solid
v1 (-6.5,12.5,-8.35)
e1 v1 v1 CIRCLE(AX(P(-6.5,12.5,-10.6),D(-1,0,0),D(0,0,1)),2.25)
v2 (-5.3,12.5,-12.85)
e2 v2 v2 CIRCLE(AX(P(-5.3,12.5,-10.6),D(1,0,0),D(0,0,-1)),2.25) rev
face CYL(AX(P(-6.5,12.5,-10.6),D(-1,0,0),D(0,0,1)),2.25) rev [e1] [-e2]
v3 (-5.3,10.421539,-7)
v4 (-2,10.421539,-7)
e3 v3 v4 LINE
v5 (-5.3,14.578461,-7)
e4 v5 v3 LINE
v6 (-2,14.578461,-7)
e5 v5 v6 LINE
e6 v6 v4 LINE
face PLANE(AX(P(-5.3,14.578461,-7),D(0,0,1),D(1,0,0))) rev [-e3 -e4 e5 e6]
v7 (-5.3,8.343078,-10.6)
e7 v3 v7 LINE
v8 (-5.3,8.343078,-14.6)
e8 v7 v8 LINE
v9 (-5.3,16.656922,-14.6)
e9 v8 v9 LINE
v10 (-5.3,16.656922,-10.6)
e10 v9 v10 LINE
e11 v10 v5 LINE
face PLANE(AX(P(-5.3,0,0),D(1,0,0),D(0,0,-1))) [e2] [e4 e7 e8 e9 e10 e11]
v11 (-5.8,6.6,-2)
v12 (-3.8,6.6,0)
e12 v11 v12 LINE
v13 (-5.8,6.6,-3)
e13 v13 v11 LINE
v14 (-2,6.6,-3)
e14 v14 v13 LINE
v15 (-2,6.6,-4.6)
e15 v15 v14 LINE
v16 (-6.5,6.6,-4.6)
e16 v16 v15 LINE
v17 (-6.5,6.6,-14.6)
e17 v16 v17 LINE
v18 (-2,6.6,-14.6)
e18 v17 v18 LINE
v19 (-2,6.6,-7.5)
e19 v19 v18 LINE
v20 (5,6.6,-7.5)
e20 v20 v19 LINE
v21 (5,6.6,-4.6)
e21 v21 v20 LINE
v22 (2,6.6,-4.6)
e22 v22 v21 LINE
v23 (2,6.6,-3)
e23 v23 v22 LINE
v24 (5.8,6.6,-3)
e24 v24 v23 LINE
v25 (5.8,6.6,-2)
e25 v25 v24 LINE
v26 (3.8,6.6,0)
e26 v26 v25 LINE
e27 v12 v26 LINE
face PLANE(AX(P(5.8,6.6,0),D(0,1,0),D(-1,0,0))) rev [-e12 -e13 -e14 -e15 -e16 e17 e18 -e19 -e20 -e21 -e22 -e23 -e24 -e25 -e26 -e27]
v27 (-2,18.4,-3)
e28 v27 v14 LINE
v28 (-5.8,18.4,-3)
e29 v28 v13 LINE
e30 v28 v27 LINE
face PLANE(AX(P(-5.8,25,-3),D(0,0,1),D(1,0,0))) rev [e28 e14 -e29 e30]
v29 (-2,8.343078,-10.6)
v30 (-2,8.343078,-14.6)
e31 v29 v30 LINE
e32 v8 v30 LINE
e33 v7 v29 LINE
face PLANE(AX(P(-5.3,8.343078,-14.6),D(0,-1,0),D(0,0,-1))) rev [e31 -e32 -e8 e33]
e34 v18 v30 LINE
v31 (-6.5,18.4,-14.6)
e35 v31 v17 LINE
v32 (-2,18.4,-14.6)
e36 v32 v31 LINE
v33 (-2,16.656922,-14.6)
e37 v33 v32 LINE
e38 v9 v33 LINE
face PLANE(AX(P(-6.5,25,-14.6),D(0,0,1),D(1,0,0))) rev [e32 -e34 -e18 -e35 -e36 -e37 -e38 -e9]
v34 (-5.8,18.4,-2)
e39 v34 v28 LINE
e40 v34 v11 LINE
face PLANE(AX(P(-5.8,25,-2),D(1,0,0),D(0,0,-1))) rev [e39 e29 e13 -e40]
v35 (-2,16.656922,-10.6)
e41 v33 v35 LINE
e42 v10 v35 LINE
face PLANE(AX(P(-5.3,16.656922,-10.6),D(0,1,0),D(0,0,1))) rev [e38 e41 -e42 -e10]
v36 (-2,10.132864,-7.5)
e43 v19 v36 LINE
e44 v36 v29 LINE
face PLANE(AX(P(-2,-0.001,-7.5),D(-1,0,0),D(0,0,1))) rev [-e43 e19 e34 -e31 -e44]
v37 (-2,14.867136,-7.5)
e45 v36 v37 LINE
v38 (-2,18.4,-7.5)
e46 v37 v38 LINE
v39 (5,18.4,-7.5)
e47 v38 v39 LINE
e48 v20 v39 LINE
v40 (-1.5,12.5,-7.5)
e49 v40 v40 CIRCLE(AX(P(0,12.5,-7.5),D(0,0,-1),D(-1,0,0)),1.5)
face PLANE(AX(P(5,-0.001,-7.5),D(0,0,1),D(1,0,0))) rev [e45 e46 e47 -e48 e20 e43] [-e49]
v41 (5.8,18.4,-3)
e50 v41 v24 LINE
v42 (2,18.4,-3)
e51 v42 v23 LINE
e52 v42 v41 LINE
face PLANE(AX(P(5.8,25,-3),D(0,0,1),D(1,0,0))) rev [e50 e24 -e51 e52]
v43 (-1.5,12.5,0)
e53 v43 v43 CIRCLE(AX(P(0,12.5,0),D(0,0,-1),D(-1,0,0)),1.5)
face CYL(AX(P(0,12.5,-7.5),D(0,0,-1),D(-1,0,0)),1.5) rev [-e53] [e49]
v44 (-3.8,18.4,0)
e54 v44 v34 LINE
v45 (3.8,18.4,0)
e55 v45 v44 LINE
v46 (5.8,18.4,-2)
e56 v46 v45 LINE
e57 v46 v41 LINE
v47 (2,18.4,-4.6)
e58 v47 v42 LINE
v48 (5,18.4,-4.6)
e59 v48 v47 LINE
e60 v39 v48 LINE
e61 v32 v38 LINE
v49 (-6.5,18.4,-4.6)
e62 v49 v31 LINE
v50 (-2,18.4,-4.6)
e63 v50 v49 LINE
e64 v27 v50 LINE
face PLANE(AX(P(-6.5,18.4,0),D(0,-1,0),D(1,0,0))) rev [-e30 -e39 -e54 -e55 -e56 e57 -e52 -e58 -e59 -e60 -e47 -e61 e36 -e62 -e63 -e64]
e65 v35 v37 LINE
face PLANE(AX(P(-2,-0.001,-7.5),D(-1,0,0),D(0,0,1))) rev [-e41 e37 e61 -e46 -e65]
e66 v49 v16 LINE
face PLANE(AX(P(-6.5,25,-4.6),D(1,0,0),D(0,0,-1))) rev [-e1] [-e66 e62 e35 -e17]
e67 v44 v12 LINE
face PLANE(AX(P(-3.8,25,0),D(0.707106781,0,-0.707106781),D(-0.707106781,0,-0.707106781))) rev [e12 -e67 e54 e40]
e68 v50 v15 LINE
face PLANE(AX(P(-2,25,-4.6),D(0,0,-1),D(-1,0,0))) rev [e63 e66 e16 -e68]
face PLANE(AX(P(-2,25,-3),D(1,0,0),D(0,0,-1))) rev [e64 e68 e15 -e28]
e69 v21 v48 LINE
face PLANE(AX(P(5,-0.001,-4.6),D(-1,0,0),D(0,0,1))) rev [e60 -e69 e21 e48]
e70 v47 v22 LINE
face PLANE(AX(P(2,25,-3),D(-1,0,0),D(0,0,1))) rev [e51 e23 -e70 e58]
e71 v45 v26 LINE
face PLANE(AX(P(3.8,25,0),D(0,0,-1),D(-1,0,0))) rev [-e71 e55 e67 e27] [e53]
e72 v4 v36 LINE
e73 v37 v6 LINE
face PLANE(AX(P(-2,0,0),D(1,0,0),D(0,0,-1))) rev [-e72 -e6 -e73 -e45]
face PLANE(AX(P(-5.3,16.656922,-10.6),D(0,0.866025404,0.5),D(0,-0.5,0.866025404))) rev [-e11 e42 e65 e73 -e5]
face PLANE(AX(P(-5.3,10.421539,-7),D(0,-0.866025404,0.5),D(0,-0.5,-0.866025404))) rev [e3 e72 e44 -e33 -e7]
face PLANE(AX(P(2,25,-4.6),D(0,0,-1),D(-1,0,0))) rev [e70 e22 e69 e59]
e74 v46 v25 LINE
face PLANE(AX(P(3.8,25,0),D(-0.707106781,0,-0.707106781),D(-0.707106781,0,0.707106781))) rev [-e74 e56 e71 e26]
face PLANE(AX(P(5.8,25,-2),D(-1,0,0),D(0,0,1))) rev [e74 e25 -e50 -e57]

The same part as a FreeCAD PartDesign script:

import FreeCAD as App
import Part
import Sketcher
from FreeCAD import Vector
Q = App.Units.Quantity

doc = App.newDocument("Part")
body = doc.addObject("PartDesign::Body", "Body")

sketch1 = body.newObject("Sketcher::SketchObject", "Sketch")
sketch1.AttachmentSupport = (doc.getObject("XZ_Plane"), [""])
sketch1.MapMode = "FlatFace"
sketch1.addGeometry([
    Part.LineSegment(Vector(-5.8, -2, 0), Vector(-3.8, 0, 0)),
    Part.LineSegment(Vector(-3.8, 0, 0), Vector(3.8, 0, 0)),
    Part.LineSegment(Vector(3.8, 0, 0), Vector(5.8, -2, 0)),
    Part.LineSegment(Vector(5.8, -2, 0), Vector(5.8, -3, 0)),
    Part.LineSegment(Vector(5.8, -3, 0), Vector(2, -3, 0)),
    Part.LineSegment(Vector(2, -3, 0), Vector(2, -4.6, 0)),
    Part.LineSegment(Vector(2, -4.6, 0), Vector(6.5, -4.6, 0)),
    Part.LineSegment(Vector(6.5, -4.6, 0), Vector(6.5, -14.6, 0)),
    Part.LineSegment(Vector(6.5, -14.6, 0), Vector(-6.5, -14.6, 0)),
    Part.LineSegment(Vector(-6.5, -14.6, 0), Vector(-6.5, -4.6, 0)),
    Part.LineSegment(Vector(-6.5, -4.6, 0), Vector(-2, -4.6, 0)),
    Part.LineSegment(Vector(-2, -4.6, 0), Vector(-2, -3, 0)),
    Part.LineSegment(Vector(-2, -3, 0), Vector(-5.8, -3, 0)),
    Part.LineSegment(Vector(-5.8, -3, 0), Vector(-5.8, -2, 0)),
], False)
sketch1.addConstraint([
    Sketcher.Constraint("Coincident", 0, 2, 1, 1),
    Sketcher.Constraint("Coincident", 1, 2, 2, 1),
    Sketcher.Constraint("Coincident", 2, 2, 3, 1),
    Sketcher.Constraint("Coincident", 3, 2, 4, 1),
    Sketcher.Constraint("Coincident", 4, 2, 5, 1),
    Sketcher.Constraint("Coincident", 5, 2, 6, 1),
    Sketcher.Constraint("Coincident", 6, 2, 7, 1),
    Sketcher.Constraint("Coincident", 7, 2, 8, 1),
    Sketcher.Constraint("Coincident", 8, 2, 9, 1),
    Sketcher.Constraint("Coincident", 9, 2, 10, 1),
    Sketcher.Constraint("Coincident", 10, 2, 11, 1),
    Sketcher.Constraint("Coincident", 11, 2, 12, 1),
    Sketcher.Constraint("Coincident", 12, 2, 13, 1),
    Sketcher.Constraint("Coincident", 13, 2, 0, 1),
    Sketcher.Constraint("Horizontal", 1),
    Sketcher.Constraint("Vertical", 3),
    Sketcher.Constraint("Horizontal", 4),
    Sketcher.Constraint("Vertical", 5),
    Sketcher.Constraint("Horizontal", 6),
    Sketcher.Constraint("Vertical", 7),
    Sketcher.Constraint("Horizontal", 8),
    Sketcher.Constraint("Vertical", 9),
    Sketcher.Constraint("Horizontal", 10),
    Sketcher.Constraint("Vertical", 11),
    Sketcher.Constraint("Horizontal", 12),
    Sketcher.Constraint("Vertical", 13),
    Sketcher.Constraint("Symmetric", 0, 2, 1, 2, -1, 1),
    Sketcher.Constraint("Symmetric", 6, 2, 9, 2, -2),
    Sketcher.Constraint("Symmetric", 4, 2, 11, 2, -2),
    Sketcher.Constraint("Symmetric", 2, 2, 13, 2, -2),
    Sketcher.Constraint("Perpendicular", 0, 2),
    Sketcher.Constraint("DistanceX", 8, 2, 8, 1, Q("13 mm")),
    Sketcher.Constraint("DistanceY", 3, 2, 3, 1, Q("1 mm")),
    Sketcher.Constraint("DistanceY", 7, 2, 7, 1, Q("10 mm")),
    Sketcher.Constraint("DistanceX", 1, 1, 1, 2, Q("7.6 mm")),
    Sketcher.Constraint("DistanceX", 4, 2, 4, 1, Q("3.8 mm")),
    Sketcher.Constraint("DistanceX", 6, 1, 6, 2, Q("4.5 mm")),
    Sketcher.Constraint("DistanceY", 5, 2, 5, 1, Q("1.6 mm")),
])
pad1 = body.newObject("PartDesign::Pad", "Pad")
pad1.Profile = sketch1
pad1.Length = 25
pad1.Reversed = True

sketch2 = body.newObject("Sketcher::SketchObject", "Sketch001")
sketch2.AttachmentSupport = (doc.getObject("XZ_Plane"), [""])
sketch2.MapMode = "FlatFace"
sketch2.AttachmentOffset = App.Placement(Vector(0, 0, -25), App.Rotation())
sketch2.addGeometry([
    Part.LineSegment(Vector(5, -4.6, 0), Vector(6.5, -4.6, 0)),
    Part.LineSegment(Vector(6.5, -4.6, 0), Vector(6.5, -14.6, 0)),
    Part.LineSegment(Vector(6.5, -14.6, 0), Vector(-2, -14.6, 0)),
    Part.LineSegment(Vector(-2, -14.6, 0), Vector(-2, -7.5, 0)),
    Part.LineSegment(Vector(-2, -7.5, 0), Vector(5, -7.5, 0)),
    Part.LineSegment(Vector(5, -7.5, 0), Vector(5, -4.6, 0)),
], False)
sketch2.addConstraint([
    Sketcher.Constraint("Coincident", 0, 2, 1, 1),
    Sketcher.Constraint("Coincident", 1, 2, 2, 1),
    Sketcher.Constraint("Coincident", 2, 2, 3, 1),
    Sketcher.Constraint("Coincident", 3, 2, 4, 1),
    Sketcher.Constraint("Coincident", 4, 2, 5, 1),
    Sketcher.Constraint("Coincident", 5, 2, 0, 1),
    Sketcher.Constraint("Horizontal", 0),
    Sketcher.Constraint("Vertical", 1),
    Sketcher.Constraint("Horizontal", 2),
    Sketcher.Constraint("Vertical", 3),
    Sketcher.Constraint("Horizontal", 4),
    Sketcher.Constraint("Vertical", 5),
    Sketcher.Constraint("DistanceX", 4, 1, 4, 2, Q("7 mm")),
    Sketcher.Constraint("DistanceY", 1, 2, 1, 1, Q("10 mm")),
    Sketcher.Constraint("DistanceX", 0, 1, 0, 2, Q("1.5 mm")),
    Sketcher.Constraint("DistanceY", 3, 1, 3, 2, Q("7.1 mm")),
    Sketcher.Constraint("DistanceX", 2, 2, -1, 1, Q("2 mm")),
    Sketcher.Constraint("DistanceY", 0, 2, -1, 1, Q("4.6 mm")),
])
pocket1 = body.newObject("PartDesign::Pocket", "Pocket")
pocket1.Profile = sketch2
pocket1.Type = "UpToFirst"
pocket1.Reversed = True

sketch3 = body.newObject("Sketcher::SketchObject", "Sketch002")
sketch3.AttachmentSupport = (doc.getObject("XY_Plane"), [""])
sketch3.MapMode = "FlatFace"
sketch3.AttachmentOffset = App.Placement(Vector(0, 0, -7.5), App.Rotation())
sketch3.addGeometry([
    Part.Circle(Vector(0, 22, 0), Vector(0, 0, 1), 1.5),
    Part.Circle(Vector(0, 3, 0), Vector(0, 0, 1), 1.5),
    Part.Circle(Vector(0, 12.5, 0), Vector(0, 0, 1), 1.5),
], False)
sketch3.addConstraint([
    Sketcher.Constraint("Equal", 0, 1),
    Sketcher.Constraint("Equal", 1, 2),
    Sketcher.Constraint("PointOnObject", 0, 3, -2),
    Sketcher.Constraint("PointOnObject", 1, 3, -2),
    Sketcher.Constraint("PointOnObject", 2, 3, -2),
    Sketcher.Constraint("Diameter", 0, Q("3 mm")),
    Sketcher.Constraint("DistanceY", -1, 1, 0, 3, Q("22 mm")),
    Sketcher.Constraint("DistanceY", -1, 1, 1, 3, Q("3 mm")),
    Sketcher.Constraint("DistanceY", -1, 1, 2, 3, Q("12.5 mm")),
])
doc.recompute()
hole = body.newObject("PartDesign::Hole", "Hole")
hole.Profile = sketch3
hole.ThreadType = "None"
hole.Diameter = 3
hole.DepthType = "Dimension"
hole.Depth = 7.5
hole.DrillPoint = "Flat"
hole.Reversed = True

sketch4 = body.newObject("Sketcher::SketchObject", "Sketch003")
sketch4.AttachmentSupport = (doc.getObject("YZ_Plane"), [""])
sketch4.MapMode = "FlatFace"
sketch4.AttachmentOffset = App.Placement(Vector(0, 0, -6.5), App.Rotation())
sketch4.addGeometry(Part.Circle(Vector(12.5, -10.6, 0), Vector(0, 0, 1), 2.2), False)
sketch4.addConstraint([
    Sketcher.Constraint("Diameter", 0, Q("4.5 mm")),
    Sketcher.Constraint("DistanceX", -1, 1, 0, 3, Q("12.5 mm")),
    Sketcher.Constraint("DistanceY", 0, 3, -1, 1, Q("10.6 mm")),
])
doc.recompute()
hole2 = body.newObject("PartDesign::Hole", "Hole001")
hole2.Profile = sketch4
hole2.ThreadType = "None"
hole2.Diameter = 4.5
hole2.DepthType = "Dimension"
hole2.Depth = 4.5
hole2.DrillPoint = "Flat"
hole2.Reversed = True

sketch5 = body.newObject("Sketcher::SketchObject", "Sketch004")
sketch5.AttachmentSupport = (doc.getObject("YZ_Plane"), [""])
sketch5.MapMode = "FlatFace"
sketch5.AttachmentOffset = App.Placement(Vector(0, 0, -2), App.Rotation())
sketch5.addGeometry([
    Part.LineSegment(Vector(16.7, -14.6, 0), Vector(16.7, -10.6, 0)),
    Part.LineSegment(Vector(16.7, -10.6, 0), Vector(14.6, -7, 0)),
    Part.LineSegment(Vector(14.6, -7, 0), Vector(10.4, -7, 0)),
    Part.LineSegment(Vector(10.4, -7, 0), Vector(8.3, -10.6, 0)),
    Part.LineSegment(Vector(8.3, -10.6, 0), Vector(8.3, -14.6, 0)),
    Part.LineSegment(Vector(8.3, -14.6, 0), Vector(16.7, -14.6, 0)),
], False)
sketch5.addConstraint([
    Sketcher.Constraint("Coincident", 0, 2, 1, 1),
    Sketcher.Constraint("Coincident", 1, 2, 2, 1),
    Sketcher.Constraint("Coincident", 2, 2, 3, 1),
    Sketcher.Constraint("Coincident", 3, 2, 4, 1),
    Sketcher.Constraint("Coincident", 4, 2, 5, 1),
    Sketcher.Constraint("Coincident", 5, 2, 0, 1),
    Sketcher.Constraint("Vertical", 0),
    Sketcher.Constraint("Horizontal", 2),
    Sketcher.Constraint("Vertical", 4),
    Sketcher.Constraint("Horizontal", 5),
    Sketcher.Constraint("Horizontal", 0, 2, 3, 2),
    Sketcher.Constraint("Equal", 1, 3),
    Sketcher.Constraint("DistanceY", 0, 1, 0, 2, Q("4 mm")),
    Sketcher.Constraint("Angle", 1, Q("120 deg")),
    Sketcher.Constraint("DistanceY", 1, 2, -1, 1, Q("7 mm")),
    Sketcher.Constraint("DistanceY", 0, 2, -1, 1, Q("10.6 mm")),
    Sketcher.Constraint("DistanceX", 2, 2, 2, 1, Q("4.156922 mm")),
    Sketcher.Constraint("DistanceX", -1, 1, 0, 2, Q("16.656922 mm")),
])
pocket2 = body.newObject("PartDesign::Pocket", "Pocket001")
pocket2.Profile = sketch5
pocket2.Length = 3.3

sketch6 = body.newObject("Sketcher::SketchObject", "Sketch005")
sketch6.AttachmentSupport = (doc.getObject("XY_Plane"), [""])
sketch6.MapMode = "FlatFace"
sketch6.AttachmentOffset = App.Placement(Vector(0, 0, -14.6), App.Rotation())
sketch6.addGeometry([
    Part.LineSegment(Vector(6, 25, 0), Vector(6, 18, 0)),
    Part.LineSegment(Vector(6, 18, 0), Vector(-6, 18, 0)),
    Part.LineSegment(Vector(-6, 18, 0), Vector(-6, 25, 0)),
    Part.LineSegment(Vector(-6, 25, 0), Vector(6, 25, 0)),
    Part.LineSegment(Vector(6, 7, 0), Vector(6, 0, 0)),
    Part.LineSegment(Vector(6, 0, 0), Vector(-6, 0, 0)),
    Part.LineSegment(Vector(-6, 0, 0), Vector(-6, 7, 0)),
    Part.LineSegment(Vector(-6, 7, 0), Vector(6, 7, 0)),
], False)
sketch6.addConstraint([
    Sketcher.Constraint("Coincident", 0, 2, 1, 1),
    Sketcher.Constraint("Coincident", 1, 2, 2, 1),
    Sketcher.Constraint("Coincident", 2, 2, 3, 1),
    Sketcher.Constraint("Coincident", 3, 2, 0, 1),
    Sketcher.Constraint("Coincident", 4, 2, 5, 1),
    Sketcher.Constraint("Coincident", 5, 2, 6, 1),
    Sketcher.Constraint("Coincident", 6, 2, 7, 1),
    Sketcher.Constraint("Coincident", 7, 2, 4, 1),
    Sketcher.Constraint("Vertical", 0),
    Sketcher.Constraint("Horizontal", 1),
    Sketcher.Constraint("Vertical", 2),
    Sketcher.Constraint("Horizontal", 3),
    Sketcher.Constraint("Vertical", 4),
    Sketcher.Constraint("Horizontal", 5),
    Sketcher.Constraint("Vertical", 6),
    Sketcher.Constraint("Horizontal", 7),
    Sketcher.Constraint("PointOnObject", 4, 2, -1),
    Sketcher.Constraint("Vertical", 3, 2, 4, 2),
    Sketcher.Constraint("Vertical", 2, 2, 5, 2),
    Sketcher.Constraint("Equal", 2, 4),
    Sketcher.Constraint("DistanceX", 1, 2, 1, 1, Q("12.3 mm")),
    Sketcher.Constraint("DistanceY", 0, 2, 0, 1, Q("6.6 mm")),
    Sketcher.Constraint("DistanceY", -1, 1, 2, 2, Q("25 mm")),
    Sketcher.Constraint("DistanceX", -1, 1, 0, 2, Q("5.8 mm")),
])
pocket3 = body.newObject("PartDesign::Pocket", "Pocket002")
pocket3.Profile = sketch6
pocket3.Type = "ThroughAll"
pocket3.Reversed = True

doc.recompute()
